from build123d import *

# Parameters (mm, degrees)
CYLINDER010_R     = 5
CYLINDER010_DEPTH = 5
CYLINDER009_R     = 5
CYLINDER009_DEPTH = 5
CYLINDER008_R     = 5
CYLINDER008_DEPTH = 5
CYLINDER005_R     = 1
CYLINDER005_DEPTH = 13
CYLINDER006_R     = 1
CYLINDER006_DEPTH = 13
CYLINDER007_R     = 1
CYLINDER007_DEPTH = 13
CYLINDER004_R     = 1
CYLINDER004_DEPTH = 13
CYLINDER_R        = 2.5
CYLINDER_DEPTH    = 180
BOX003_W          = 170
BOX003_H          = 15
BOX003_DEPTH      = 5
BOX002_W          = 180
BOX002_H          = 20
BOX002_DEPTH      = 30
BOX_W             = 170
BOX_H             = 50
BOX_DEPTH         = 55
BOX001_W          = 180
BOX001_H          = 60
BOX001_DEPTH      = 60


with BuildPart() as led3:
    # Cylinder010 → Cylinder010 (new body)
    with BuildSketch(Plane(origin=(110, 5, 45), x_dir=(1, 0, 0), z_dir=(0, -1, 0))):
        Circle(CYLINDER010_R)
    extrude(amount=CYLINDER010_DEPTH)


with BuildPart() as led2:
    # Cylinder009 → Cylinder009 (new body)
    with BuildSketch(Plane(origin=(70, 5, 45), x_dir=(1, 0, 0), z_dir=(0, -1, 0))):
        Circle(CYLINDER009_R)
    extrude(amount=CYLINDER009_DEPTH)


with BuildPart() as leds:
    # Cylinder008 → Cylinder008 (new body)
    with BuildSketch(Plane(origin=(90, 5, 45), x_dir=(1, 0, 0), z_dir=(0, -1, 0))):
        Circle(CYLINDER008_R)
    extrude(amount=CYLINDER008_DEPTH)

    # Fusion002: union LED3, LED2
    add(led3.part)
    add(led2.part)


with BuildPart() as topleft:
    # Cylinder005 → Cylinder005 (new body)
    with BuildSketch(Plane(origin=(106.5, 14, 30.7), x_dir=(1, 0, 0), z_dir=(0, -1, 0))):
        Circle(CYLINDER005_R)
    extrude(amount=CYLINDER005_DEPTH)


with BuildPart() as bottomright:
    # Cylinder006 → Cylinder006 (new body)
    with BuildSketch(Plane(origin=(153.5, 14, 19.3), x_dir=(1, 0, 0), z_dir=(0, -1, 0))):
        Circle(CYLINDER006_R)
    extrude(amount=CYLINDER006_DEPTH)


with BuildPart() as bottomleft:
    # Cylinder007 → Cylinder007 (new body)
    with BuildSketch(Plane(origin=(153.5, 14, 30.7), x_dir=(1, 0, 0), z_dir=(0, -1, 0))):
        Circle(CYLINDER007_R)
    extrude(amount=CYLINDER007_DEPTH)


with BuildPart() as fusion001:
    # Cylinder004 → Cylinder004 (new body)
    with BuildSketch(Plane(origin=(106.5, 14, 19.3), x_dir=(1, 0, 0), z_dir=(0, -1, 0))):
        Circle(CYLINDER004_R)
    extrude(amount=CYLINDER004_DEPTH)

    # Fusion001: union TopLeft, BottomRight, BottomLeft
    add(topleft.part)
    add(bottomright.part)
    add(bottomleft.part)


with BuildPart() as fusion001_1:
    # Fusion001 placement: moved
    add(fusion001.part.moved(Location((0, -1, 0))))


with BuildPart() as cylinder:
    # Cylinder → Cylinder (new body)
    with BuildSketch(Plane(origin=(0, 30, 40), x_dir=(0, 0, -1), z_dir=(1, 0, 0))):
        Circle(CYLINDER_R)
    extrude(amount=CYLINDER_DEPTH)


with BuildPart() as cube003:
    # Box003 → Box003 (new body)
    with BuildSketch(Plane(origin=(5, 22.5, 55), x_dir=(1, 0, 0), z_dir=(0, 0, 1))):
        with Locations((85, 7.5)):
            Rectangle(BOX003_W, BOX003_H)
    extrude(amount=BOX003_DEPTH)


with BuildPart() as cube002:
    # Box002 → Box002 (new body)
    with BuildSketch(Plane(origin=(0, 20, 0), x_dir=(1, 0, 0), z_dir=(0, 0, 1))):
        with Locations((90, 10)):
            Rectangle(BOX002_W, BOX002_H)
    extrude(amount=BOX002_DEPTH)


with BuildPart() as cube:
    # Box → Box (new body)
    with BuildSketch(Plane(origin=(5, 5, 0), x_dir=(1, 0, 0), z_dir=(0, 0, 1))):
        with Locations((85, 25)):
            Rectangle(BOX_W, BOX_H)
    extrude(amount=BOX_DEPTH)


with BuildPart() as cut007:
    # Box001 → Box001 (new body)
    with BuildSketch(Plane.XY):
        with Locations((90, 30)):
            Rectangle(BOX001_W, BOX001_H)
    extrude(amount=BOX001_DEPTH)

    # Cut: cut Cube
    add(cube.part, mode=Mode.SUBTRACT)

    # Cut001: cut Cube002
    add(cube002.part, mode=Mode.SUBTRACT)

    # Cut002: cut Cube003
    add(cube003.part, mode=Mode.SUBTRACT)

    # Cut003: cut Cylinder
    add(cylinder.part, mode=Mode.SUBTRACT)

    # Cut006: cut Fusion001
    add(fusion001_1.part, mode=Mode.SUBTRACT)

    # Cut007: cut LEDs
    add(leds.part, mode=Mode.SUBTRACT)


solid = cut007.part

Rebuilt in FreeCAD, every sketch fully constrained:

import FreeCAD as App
import Part
import Sketcher

doc = App.newDocument("Part")
body = doc.addObject("PartDesign::Body", "Body")

# Sketch on XZ plane
sketch1 = doc.addObject("Sketcher::SketchObject", "Sketch")
body.addObject(sketch1)
sketch1.AttachmentSupport = (doc.XZ_Plane, [""])
sketch1.MapMode = "FlatFace"
sketch1.AttachmentOffset = App.Placement(App.Vector(0, 0, -5), App.Rotation())
sketch1.addGeometry(Part.Circle(App.Vector(110, 45, 0), App.Vector(0, 0, 1), 5), False)
sketch1.addConstraint([
    Sketcher.Constraint("Diameter", 0, 10.0),
    Sketcher.Constraint("DistanceX", -1, 1, 0, 3, 110.0),
    Sketcher.Constraint("DistanceY", -1, 1, 0, 3, 45.0),
])
pad1 = doc.addObject("PartDesign::Pad", "Pad")
body.addObject(pad1)
pad1.Profile = sketch1
pad1.Length = 5
body2 = doc.addObject("PartDesign::Body", "Body001")

# Sketch on XZ plane
sketch2 = doc.addObject("Sketcher::SketchObject", "Sketch001")
body2.addObject(sketch2)
sketch2.AttachmentSupport = (doc.getObject("XZ_Plane001"), [""])
sketch2.MapMode = "FlatFace"
sketch2.AttachmentOffset = App.Placement(App.Vector(0, 0, -5), App.Rotation())
sketch2.addGeometry(Part.Circle(App.Vector(70, 45, 0), App.Vector(0, 0, 1), 5), False)
sketch2.addConstraint([
    Sketcher.Constraint("Diameter", 0, 10.0),
    Sketcher.Constraint("DistanceX", -1, 1, 0, 3, 70.0),
    Sketcher.Constraint("DistanceY", -1, 1, 0, 3, 45.0),
])
pad2 = doc.addObject("PartDesign::Pad", "Pad001")
body2.addObject(pad2)
pad2.Profile = sketch2
pad2.Length = 5
body3 = doc.addObject("PartDesign::Body", "Body002")
body3.AllowCompound = True

# Sketch on XZ plane
sketch3 = doc.addObject("Sketcher::SketchObject", "Sketch002")
body3.addObject(sketch3)
sketch3.AttachmentSupport = (doc.getObject("XZ_Plane002"), [""])
sketch3.MapMode = "FlatFace"
sketch3.AttachmentOffset = App.Placement(App.Vector(0, 0, -5), App.Rotation())
sketch3.addGeometry(Part.Circle(App.Vector(90, 45, 0), App.Vector(0, 0, 1), 5), False)
sketch3.addConstraint([
    Sketcher.Constraint("Diameter", 0, 10.0),
    Sketcher.Constraint("DistanceX", -1, 1, 0, 3, 90.0),
    Sketcher.Constraint("DistanceY", -1, 1, 0, 3, 45.0),
])
pad3 = doc.addObject("PartDesign::Pad", "Pad002")
body3.addObject(pad3)
pad3.Profile = sketch3
pad3.Length = 5
doc.recompute()

boolean = doc.addObject("PartDesign::Boolean", "Boolean")
body3.addObject(boolean)
boolean.Type = "Fuse"
boolean.addObjects([body])
doc.recompute()

boolean2 = doc.addObject("PartDesign::Boolean", "Boolean001")
body3.addObject(boolean2)
boolean2.Type = "Fuse"
boolean2.addObjects([body2])
body4 = doc.addObject("PartDesign::Body", "Body003")

# Sketch on XZ plane
sketch4 = doc.addObject("Sketcher::SketchObject", "Sketch003")
body4.addObject(sketch4)
sketch4.AttachmentSupport = (doc.getObject("XZ_Plane003"), [""])
sketch4.MapMode = "FlatFace"
sketch4.AttachmentOffset = App.Placement(App.Vector(0, 0, -14), App.Rotation())
sketch4.addGeometry(Part.Circle(App.Vector(106.5, 30.7, 0), App.Vector(0, 0, 1), 1), False)
sketch4.addConstraint([
    Sketcher.Constraint("Diameter", 0, 2.0),
    Sketcher.Constraint("DistanceX", -1, 1, 0, 3, 106.5),
    Sketcher.Constraint("DistanceY", -1, 1, 0, 3, 30.7),
])
pad4 = doc.addObject("PartDesign::Pad", "Pad003")
body4.addObject(pad4)
pad4.Profile = sketch4
pad4.Length = 13
body5 = doc.addObject("PartDesign::Body", "Body004")

# Sketch on XZ plane
sketch5 = doc.addObject("Sketcher::SketchObject", "Sketch004")
body5.addObject(sketch5)
sketch5.AttachmentSupport = (doc.getObject("XZ_Plane004"), [""])
sketch5.MapMode = "FlatFace"
sketch5.AttachmentOffset = App.Placement(App.Vector(0, 0, -14), App.Rotation())
sketch5.addGeometry(Part.Circle(App.Vector(153.5, 19.3, 0), App.Vector(0, 0, 1), 1), False)
sketch5.addConstraint([
    Sketcher.Constraint("Diameter", 0, 2.0),
    Sketcher.Constraint("DistanceX", -1, 1, 0, 3, 153.5),
    Sketcher.Constraint("DistanceY", -1, 1, 0, 3, 19.3),
])
pad5 = doc.addObject("PartDesign::Pad", "Pad004")
body5.addObject(pad5)
pad5.Profile = sketch5
pad5.Length = 13
body6 = doc.addObject("PartDesign::Body", "Body005")

# Sketch on XZ plane
sketch6 = doc.addObject("Sketcher::SketchObject", "Sketch005")
body6.addObject(sketch6)
sketch6.AttachmentSupport = (doc.getObject("XZ_Plane005"), [""])
sketch6.MapMode = "FlatFace"
sketch6.AttachmentOffset = App.Placement(App.Vector(0, 0, -14), App.Rotation())
sketch6.addGeometry(Part.Circle(App.Vector(153.5, 30.7, 0), App.Vector(0, 0, 1), 1), False)
sketch6.addConstraint([
    Sketcher.Constraint("Diameter", 0, 2.0),
    Sketcher.Constraint("DistanceX", -1, 1, 0, 3, 153.5),
    Sketcher.Constraint("DistanceY", -1, 1, 0, 3, 30.7),
])
pad6 = doc.addObject("PartDesign::Pad", "Pad005")
body6.addObject(pad6)
pad6.Profile = sketch6
pad6.Length = 13
body7 = doc.addObject("PartDesign::Body", "Body006")
body7.AllowCompound = True

# Sketch on XZ plane
sketch7 = doc.addObject("Sketcher::SketchObject", "Sketch006")
body7.addObject(sketch7)
sketch7.AttachmentSupport = (doc.getObject("XZ_Plane006"), [""])
sketch7.MapMode = "FlatFace"
sketch7.AttachmentOffset = App.Placement(App.Vector(0, 0, -14), App.Rotation())
sketch7.addGeometry(Part.Circle(App.Vector(106.5, 19.3, 0), App.Vector(0, 0, 1), 1), False)
sketch7.addConstraint([
    Sketcher.Constraint("Diameter", 0, 2.0),
    Sketcher.Constraint("DistanceX", -1, 1, 0, 3, 106.5),
    Sketcher.Constraint("DistanceY", -1, 1, 0, 3, 19.3),
])
pad7 = doc.addObject("PartDesign::Pad", "Pad006")
body7.addObject(pad7)
pad7.Profile = sketch7
pad7.Length = 13
doc.recompute()

boolean3 = doc.addObject("PartDesign::Boolean", "Boolean002")
body7.addObject(boolean3)
boolean3.Type = "Fuse"
boolean3.addObjects([body4])
doc.recompute()

boolean4 = doc.addObject("PartDesign::Boolean", "Boolean003")
body7.addObject(boolean4)
boolean4.Type = "Fuse"
boolean4.addObjects([body5])
doc.recompute()

boolean5 = doc.addObject("PartDesign::Boolean", "Boolean004")
body7.addObject(boolean5)
boolean5.Type = "Fuse"
boolean5.addObjects([body6])
body8 = doc.addObject("PartDesign::Body", "Body007")
body8.AllowCompound = True
doc.recompute()

body7.Placement = App.Placement(App.Vector(0, -1, 0), App.Rotation(App.Vector(0, 0, 1), 0))
boolean6 = doc.addObject("PartDesign::Boolean", "Boolean005")
body8.addObject(boolean6)
boolean6.Type = "Fuse"
boolean6.addObjects([body7])
body9 = doc.addObject("PartDesign::Body", "Body008")

# Sketch on YZ plane
sketch8 = doc.addObject("Sketcher::SketchObject", "Sketch007")
body9.addObject(sketch8)
sketch8.AttachmentSupport = (doc.getObject("YZ_Plane008"), [""])
sketch8.MapMode = "FlatFace"
sketch8.addGeometry(Part.Circle(App.Vector(30, 40, 0), App.Vector(0, 0, 1), 2.5), False)
sketch8.addConstraint([
    Sketcher.Constraint("Diameter", 0, 5.0),
    Sketcher.Constraint("DistanceX", -1, 1, 0, 3, 30.0),
    Sketcher.Constraint("DistanceY", -1, 1, 0, 3, 40.0),
])
pad8 = doc.addObject("PartDesign::Pad", "Pad007")
body9.addObject(pad8)
pad8.Profile = sketch8
pad8.Length = 180
body10 = doc.addObject("PartDesign::Body", "Body009")

# Sketch on XY plane
sketch9 = doc.addObject("Sketcher::SketchObject", "Sketch008")
body10.addObject(sketch9)
sketch9.AttachmentSupport = (doc.getObject("XY_Plane009"), [""])
sketch9.MapMode = "FlatFace"
sketch9.AttachmentOffset = App.Placement(App.Vector(0, 0, 55), App.Rotation())
sketch9.addGeometry([
    Part.LineSegment(App.Vector(5, 38, 0), App.Vector(5, 22, 0)),
    Part.LineSegment(App.Vector(5, 22, 0), App.Vector(175, 22, 0)),
    Part.LineSegment(App.Vector(175, 22, 0), App.Vector(175, 38, 0)),
    Part.LineSegment(App.Vector(175, 38, 0), App.Vector(5, 38, 0)),
], False)
sketch9.addConstraint([
    Sketcher.Constraint("Coincident", 0, 2, 1, 1),
    Sketcher.Constraint("Coincident", 1, 2, 2, 1),
    Sketcher.Constraint("Coincident", 2, 2, 3, 1),
    Sketcher.Constraint("Coincident", 3, 2, 0, 1),
    Sketcher.Constraint("Vertical", 0),
    Sketcher.Constraint("Horizontal", 1),
    Sketcher.Constraint("Vertical", 2),
    Sketcher.Constraint("Horizontal", 3),
    Sketcher.Constraint("DistanceX", 1, 1, 1, 2, 170.0),
    Sketcher.Constraint("DistanceY", 0, 2, 0, 1, 15.0),
    Sketcher.Constraint("DistanceX", -1, 1, 0, 2, 5.0),
    Sketcher.Constraint("DistanceY", -1, 1, 0, 2, 22.5),
])
pad9 = doc.addObject("PartDesign::Pad", "Pad008")
body10.addObject(pad9)
pad9.Profile = sketch9
pad9.Length = 5
body11 = doc.addObject("PartDesign::Body", "Body010")

# Sketch on XY plane
sketch10 = doc.addObject("Sketcher::SketchObject", "Sketch009")
body11.addObject(sketch10)
sketch10.AttachmentSupport = (doc.getObject("XY_Plane010"), [""])
sketch10.MapMode = "FlatFace"
sketch10.addGeometry([
    Part.LineSegment(App.Vector(0, 40, 0), App.Vector(0, 20, 0)),
    Part.LineSegment(App.Vector(0, 20, 0), App.Vector(180, 20, 0)),
    Part.LineSegment(App.Vector(180, 20, 0), App.Vector(180, 40, 0)),
    Part.LineSegment(App.Vector(180, 40, 0), App.Vector(0, 40, 0)),
], False)
sketch10.addConstraint([
    Sketcher.Constraint("Coincident", 0, 2, 1, 1),
    Sketcher.Constraint("Coincident", 1, 2, 2, 1),
    Sketcher.Constraint("Coincident", 2, 2, 3, 1),
    Sketcher.Constraint("Coincident", 3, 2, 0, 1),
    Sketcher.Constraint("Vertical", 0),
    Sketcher.Constraint("Horizontal", 1),
    Sketcher.Constraint("Vertical", 2),
    Sketcher.Constraint("Horizontal", 3),
    Sketcher.Constraint("PointOnObject", 0, 2, -2),
    Sketcher.Constraint("DistanceX", 1, 1, 1, 2, 180.0),
    Sketcher.Constraint("DistanceY", 0, 2, 0, 1, 20.0),
    Sketcher.Constraint("DistanceY", -1, 1, 0, 2, 20.0),
])
pad10 = doc.addObject("PartDesign::Pad", "Pad009")
body11.addObject(pad10)
pad10.Profile = sketch10
pad10.Length = 30
body12 = doc.addObject("PartDesign::Body", "Body011")

# Sketch on XY plane
sketch11 = doc.addObject("Sketcher::SketchObject", "Sketch010")
body12.addObject(sketch11)
sketch11.AttachmentSupport = (doc.getObject("XY_Plane011"), [""])
sketch11.MapMode = "FlatFace"
sketch11.addGeometry([
    Part.LineSegment(App.Vector(5, 55, 0), App.Vector(5, 5, 0)),
    Part.LineSegment(App.Vector(5, 5, 0), App.Vector(175, 5, 0)),
    Part.LineSegment(App.Vector(175, 5, 0), App.Vector(175, 55, 0)),
    Part.LineSegment(App.Vector(175, 55, 0), App.Vector(5, 55, 0)),
], False)
sketch11.addConstraint([
    Sketcher.Constraint("Coincident", 0, 2, 1, 1),
    Sketcher.Constraint("Coincident", 1, 2, 2, 1),
    Sketcher.Constraint("Coincident", 2, 2, 3, 1),
    Sketcher.Constraint("Coincident", 3, 2, 0, 1),
    Sketcher.Constraint("Vertical", 0),
    Sketcher.Constraint("Horizontal", 1),
    Sketcher.Constraint("Vertical", 2),
    Sketcher.Constraint("Horizontal", 3),
    Sketcher.Constraint("DistanceX", 1, 1, 1, 2, 170.0),
    Sketcher.Constraint("DistanceY", 0, 2, 0, 1, 50.0),
    Sketcher.Constraint("DistanceX", -1, 1, 0, 2, 5.0),
    Sketcher.Constraint("DistanceY", -1, 1, 0, 2, 5.0),
])
pad11 = doc.addObject("PartDesign::Pad", "Pad010")
body12.addObject(pad11)
pad11.Profile = sketch11
pad11.Length = 55
body13 = doc.addObject("PartDesign::Body", "Body012")

# Sketch on XY plane
sketch12 = doc.addObject("Sketcher::SketchObject", "Sketch011")
body13.addObject(sketch12)
sketch12.AttachmentSupport = (doc.getObject("XY_Plane012"), [""])
sketch12.MapMode = "FlatFace"
sketch12.addGeometry([
    Part.LineSegment(App.Vector(0, 60, 0), App.Vector(0, 0, 0)),
    Part.LineSegment(App.Vector(0, 0, 0), App.Vector(180, 0, 0)),
    Part.LineSegment(App.Vector(180, 0, 0), App.Vector(180, 60, 0)),
    Part.LineSegment(App.Vector(180, 60, 0), App.Vector(0, 60, 0)),
], False)
sketch12.addConstraint([
    Sketcher.Constraint("Coincident", 0, 2, 1, 1),
    Sketcher.Constraint("Coincident", 1, 2, 2, 1),
    Sketcher.Constraint("Coincident", 2, 2, 3, 1),
    Sketcher.Constraint("Coincident", 3, 2, 0, 1),
    Sketcher.Constraint("Vertical", 0),
    Sketcher.Constraint("Horizontal", 1),
    Sketcher.Constraint("Vertical", 2),
    Sketcher.Constraint("Horizontal", 3),
    Sketcher.Constraint("Coincident", 0, 2, -1, 1),
    Sketcher.Constraint("DistanceX", 1, 1, 1, 2, 180.0),
    Sketcher.Constraint("DistanceY", 0, 2, 0, 1, 60.0),
])
pad12 = doc.addObject("PartDesign::Pad", "Pad011")
body13.addObject(pad12)
pad12.Profile = sketch12
pad12.Length = 60
doc.recompute()

boolean7 = doc.addObject("PartDesign::Boolean", "Boolean006")
body13.addObject(boolean7)
boolean7.Type = "Cut"
boolean7.addObjects([body12])
doc.recompute()

boolean8 = doc.addObject("PartDesign::Boolean", "Boolean007")
body13.addObject(boolean8)
boolean8.Type = "Cut"
boolean8.addObjects([body11])
doc.recompute()

boolean9 = doc.addObject("PartDesign::Boolean", "Boolean008")
body13.addObject(boolean9)
boolean9.Type = "Cut"
boolean9.addObjects([body10])
doc.recompute()

boolean10 = doc.addObject("PartDesign::Boolean", "Boolean009")
body13.addObject(boolean10)
boolean10.Type = "Cut"
boolean10.addObjects([body9])
doc.recompute()

boolean11 = doc.addObject("PartDesign::Boolean", "Boolean010")
body13.addObject(boolean11)
boolean11.Type = "Cut"
boolean11.addObjects([body8])
doc.recompute()

boolean12 = doc.addObject("PartDesign::Boolean", "Boolean011")
body13.addObject(boolean12)
boolean12.Type = "Cut"
boolean12.addObjects([body3])

doc.recompute()
